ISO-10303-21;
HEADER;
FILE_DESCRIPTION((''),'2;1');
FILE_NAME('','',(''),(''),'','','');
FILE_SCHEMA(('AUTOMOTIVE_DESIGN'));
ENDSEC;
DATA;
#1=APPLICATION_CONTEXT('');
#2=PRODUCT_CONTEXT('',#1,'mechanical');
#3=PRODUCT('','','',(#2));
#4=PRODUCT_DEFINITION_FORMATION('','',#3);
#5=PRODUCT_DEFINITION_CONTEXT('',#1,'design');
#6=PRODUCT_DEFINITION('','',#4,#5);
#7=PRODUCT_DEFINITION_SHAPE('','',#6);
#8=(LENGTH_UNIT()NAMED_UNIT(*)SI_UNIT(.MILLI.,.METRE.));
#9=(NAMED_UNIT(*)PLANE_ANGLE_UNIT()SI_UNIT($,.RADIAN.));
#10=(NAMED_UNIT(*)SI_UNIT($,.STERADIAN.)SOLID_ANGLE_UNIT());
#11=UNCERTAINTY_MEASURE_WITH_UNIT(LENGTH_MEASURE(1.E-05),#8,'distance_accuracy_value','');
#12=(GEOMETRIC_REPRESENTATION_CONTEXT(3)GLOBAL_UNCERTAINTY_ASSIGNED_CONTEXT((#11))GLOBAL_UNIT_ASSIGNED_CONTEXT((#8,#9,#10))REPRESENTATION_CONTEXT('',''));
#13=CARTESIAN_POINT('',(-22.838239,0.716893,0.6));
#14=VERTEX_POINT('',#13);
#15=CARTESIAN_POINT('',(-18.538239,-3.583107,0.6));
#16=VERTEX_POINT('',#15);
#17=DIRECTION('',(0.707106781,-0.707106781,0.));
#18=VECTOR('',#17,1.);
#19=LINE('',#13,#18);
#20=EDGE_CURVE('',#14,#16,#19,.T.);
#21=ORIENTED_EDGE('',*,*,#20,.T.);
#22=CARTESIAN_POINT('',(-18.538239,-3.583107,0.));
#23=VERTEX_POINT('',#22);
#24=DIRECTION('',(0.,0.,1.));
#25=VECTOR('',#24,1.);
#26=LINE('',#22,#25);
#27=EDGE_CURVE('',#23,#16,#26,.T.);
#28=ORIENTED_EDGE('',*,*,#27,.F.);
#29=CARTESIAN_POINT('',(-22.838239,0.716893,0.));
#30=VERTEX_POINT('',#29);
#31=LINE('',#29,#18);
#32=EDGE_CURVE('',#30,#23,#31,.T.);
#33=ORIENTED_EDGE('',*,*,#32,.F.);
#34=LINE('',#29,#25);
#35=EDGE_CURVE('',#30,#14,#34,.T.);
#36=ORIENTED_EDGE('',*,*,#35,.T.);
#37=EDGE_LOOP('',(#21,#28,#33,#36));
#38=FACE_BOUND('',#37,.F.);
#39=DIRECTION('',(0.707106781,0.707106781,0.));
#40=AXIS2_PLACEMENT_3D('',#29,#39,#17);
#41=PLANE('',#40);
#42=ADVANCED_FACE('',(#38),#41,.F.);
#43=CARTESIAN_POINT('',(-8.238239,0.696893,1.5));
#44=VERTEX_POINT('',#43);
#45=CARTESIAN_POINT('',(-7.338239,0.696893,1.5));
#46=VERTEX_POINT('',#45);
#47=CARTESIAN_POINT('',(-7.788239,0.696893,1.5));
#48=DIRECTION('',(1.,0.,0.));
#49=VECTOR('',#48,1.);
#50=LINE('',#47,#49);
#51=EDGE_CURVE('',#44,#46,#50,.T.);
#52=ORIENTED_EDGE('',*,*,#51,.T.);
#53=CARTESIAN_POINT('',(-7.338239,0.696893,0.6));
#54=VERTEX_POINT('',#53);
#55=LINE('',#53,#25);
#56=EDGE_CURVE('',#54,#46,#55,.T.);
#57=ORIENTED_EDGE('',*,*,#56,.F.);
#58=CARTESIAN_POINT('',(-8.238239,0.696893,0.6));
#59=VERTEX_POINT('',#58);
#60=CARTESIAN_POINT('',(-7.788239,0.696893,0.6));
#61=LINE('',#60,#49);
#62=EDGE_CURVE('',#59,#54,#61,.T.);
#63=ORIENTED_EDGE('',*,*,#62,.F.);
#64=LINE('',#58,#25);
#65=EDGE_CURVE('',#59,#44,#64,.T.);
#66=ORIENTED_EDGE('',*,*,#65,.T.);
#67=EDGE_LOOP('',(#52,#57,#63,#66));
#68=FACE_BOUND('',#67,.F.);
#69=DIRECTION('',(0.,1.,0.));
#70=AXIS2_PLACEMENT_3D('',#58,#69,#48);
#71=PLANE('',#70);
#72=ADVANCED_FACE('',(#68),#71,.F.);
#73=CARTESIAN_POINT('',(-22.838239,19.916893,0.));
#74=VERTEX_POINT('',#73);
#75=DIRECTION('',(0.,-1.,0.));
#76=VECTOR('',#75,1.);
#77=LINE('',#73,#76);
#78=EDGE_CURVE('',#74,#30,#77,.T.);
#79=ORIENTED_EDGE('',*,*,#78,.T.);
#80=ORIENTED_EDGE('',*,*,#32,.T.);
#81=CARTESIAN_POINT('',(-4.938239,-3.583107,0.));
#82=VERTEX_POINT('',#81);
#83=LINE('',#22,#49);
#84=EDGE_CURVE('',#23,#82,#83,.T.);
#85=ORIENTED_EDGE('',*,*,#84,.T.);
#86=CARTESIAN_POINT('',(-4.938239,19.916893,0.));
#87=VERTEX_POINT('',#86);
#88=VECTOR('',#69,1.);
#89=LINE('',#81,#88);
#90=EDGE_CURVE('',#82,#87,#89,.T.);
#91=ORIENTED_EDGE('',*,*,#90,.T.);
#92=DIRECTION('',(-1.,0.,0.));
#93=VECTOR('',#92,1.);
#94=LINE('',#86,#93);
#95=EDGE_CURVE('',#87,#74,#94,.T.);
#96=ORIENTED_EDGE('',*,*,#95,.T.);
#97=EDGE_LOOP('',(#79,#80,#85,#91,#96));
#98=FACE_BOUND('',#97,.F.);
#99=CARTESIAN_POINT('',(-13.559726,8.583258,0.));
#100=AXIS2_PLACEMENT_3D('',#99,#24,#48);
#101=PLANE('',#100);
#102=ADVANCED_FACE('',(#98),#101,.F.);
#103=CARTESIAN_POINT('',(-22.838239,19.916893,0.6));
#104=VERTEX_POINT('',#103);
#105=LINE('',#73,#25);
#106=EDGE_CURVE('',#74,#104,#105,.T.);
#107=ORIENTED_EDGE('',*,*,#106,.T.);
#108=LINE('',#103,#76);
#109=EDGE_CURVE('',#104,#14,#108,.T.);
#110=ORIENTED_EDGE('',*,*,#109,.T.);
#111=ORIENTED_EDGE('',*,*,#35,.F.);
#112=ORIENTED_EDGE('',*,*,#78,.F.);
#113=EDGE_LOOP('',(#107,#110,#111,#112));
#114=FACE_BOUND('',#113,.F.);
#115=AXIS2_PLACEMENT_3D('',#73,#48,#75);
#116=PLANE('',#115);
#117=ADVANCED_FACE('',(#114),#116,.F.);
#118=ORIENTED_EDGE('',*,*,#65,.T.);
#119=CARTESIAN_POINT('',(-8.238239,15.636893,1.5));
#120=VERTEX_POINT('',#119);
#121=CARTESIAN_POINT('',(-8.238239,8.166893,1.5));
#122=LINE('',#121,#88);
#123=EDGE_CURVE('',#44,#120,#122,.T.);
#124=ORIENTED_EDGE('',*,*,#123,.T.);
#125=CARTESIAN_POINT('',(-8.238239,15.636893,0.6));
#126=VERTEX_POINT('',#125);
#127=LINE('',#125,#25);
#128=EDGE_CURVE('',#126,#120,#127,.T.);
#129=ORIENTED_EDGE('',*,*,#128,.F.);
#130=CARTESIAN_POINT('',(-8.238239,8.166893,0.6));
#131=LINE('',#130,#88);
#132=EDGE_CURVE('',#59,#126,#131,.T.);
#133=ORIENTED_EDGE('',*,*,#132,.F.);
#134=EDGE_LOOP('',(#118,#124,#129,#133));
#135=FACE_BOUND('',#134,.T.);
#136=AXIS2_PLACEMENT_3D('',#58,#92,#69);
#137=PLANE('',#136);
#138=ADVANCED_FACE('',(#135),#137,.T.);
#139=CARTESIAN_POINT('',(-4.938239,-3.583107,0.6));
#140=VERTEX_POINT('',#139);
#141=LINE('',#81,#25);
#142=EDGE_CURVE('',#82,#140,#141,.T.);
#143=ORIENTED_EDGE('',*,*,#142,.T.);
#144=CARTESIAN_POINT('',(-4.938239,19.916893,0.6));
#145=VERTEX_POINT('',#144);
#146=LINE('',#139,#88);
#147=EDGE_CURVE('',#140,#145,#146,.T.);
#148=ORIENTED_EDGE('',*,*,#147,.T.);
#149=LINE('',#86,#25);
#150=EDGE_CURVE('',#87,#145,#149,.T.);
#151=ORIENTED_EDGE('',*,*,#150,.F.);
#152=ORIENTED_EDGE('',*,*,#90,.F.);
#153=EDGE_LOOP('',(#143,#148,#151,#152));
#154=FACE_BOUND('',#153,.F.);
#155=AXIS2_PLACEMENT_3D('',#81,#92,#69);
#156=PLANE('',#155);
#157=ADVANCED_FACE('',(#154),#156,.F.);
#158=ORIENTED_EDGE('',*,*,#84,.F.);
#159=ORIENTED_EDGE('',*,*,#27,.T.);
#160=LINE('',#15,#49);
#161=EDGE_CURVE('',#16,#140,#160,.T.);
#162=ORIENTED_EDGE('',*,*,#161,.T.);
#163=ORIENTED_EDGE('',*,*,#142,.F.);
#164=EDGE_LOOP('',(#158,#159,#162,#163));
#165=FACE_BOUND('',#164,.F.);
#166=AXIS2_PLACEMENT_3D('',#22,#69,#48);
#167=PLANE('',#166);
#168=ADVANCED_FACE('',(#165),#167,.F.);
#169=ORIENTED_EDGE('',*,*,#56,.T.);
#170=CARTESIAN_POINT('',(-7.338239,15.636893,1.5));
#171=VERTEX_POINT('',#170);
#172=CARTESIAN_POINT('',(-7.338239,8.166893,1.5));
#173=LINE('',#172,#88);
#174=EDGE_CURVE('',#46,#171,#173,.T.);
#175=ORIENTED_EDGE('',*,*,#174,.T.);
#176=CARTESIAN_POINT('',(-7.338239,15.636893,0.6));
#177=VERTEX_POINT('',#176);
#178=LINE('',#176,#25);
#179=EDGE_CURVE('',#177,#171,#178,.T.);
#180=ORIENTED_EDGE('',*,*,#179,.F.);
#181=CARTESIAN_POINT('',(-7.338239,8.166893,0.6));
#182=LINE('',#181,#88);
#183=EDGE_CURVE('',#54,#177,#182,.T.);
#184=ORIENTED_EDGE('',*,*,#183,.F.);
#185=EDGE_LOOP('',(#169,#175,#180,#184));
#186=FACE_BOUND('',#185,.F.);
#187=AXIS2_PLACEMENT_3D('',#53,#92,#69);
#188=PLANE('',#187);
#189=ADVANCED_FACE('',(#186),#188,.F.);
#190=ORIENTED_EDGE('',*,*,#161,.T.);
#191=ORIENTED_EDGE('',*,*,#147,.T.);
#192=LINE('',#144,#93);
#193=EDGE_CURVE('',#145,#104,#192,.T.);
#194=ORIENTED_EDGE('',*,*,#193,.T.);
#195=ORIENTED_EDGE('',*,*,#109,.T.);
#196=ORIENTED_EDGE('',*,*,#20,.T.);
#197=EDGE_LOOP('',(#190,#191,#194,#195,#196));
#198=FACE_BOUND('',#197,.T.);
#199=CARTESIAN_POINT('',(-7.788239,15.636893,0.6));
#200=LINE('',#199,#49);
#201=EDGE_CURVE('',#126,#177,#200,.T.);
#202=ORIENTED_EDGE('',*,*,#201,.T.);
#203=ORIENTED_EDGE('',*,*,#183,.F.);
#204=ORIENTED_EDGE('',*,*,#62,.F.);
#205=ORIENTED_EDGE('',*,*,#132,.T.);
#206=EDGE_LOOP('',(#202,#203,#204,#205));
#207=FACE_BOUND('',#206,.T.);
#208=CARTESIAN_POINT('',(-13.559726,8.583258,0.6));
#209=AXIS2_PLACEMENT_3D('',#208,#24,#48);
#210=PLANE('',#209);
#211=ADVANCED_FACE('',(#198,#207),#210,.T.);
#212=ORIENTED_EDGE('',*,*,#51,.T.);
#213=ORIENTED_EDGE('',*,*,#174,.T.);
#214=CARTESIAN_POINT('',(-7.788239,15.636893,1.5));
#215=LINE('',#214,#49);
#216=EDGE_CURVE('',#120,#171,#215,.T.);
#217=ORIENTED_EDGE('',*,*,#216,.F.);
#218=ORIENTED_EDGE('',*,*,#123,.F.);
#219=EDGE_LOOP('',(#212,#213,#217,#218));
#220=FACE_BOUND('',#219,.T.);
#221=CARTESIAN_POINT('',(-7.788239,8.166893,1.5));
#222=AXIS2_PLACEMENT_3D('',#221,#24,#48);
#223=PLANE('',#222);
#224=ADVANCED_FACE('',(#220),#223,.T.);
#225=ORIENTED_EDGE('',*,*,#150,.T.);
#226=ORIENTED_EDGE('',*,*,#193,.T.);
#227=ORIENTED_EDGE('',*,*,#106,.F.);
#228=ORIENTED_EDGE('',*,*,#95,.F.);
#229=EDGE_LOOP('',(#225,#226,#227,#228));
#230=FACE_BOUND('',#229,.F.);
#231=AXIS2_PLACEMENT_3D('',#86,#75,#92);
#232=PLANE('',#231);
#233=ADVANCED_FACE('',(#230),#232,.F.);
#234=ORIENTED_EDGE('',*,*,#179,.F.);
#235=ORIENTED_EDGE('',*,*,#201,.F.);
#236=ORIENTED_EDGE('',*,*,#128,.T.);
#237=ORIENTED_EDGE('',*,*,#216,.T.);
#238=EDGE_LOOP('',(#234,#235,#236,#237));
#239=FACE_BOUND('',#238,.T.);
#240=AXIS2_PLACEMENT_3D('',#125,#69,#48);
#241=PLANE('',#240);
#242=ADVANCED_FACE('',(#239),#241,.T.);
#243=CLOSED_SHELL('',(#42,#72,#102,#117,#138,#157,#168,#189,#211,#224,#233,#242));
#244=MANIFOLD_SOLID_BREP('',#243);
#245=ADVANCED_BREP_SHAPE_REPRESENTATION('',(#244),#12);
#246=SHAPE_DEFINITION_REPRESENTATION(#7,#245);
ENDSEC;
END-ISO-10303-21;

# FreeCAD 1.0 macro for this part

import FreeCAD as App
import Part
import Sketcher
Q = App.Units.Quantity


def add_polygon(sketch, points):
    """Adds a closed chain of lines whose ends are joined by coincident constraints."""
    first, n = sketch.GeometryCount, len(points)
    for a, b in zip(points, points[1:] + points[:1]):
        sketch.addGeometry(Part.LineSegment(App.Vector(*a, 0), App.Vector(*b, 0)), False)
    for i in range(n):
        sketch.addConstraint(Sketcher.Constraint("Coincident", first + i, 2, first + (i + 1) % n, 1))

doc = App.newDocument("Part")
params = doc.addObject("Spreadsheet::Sheet", "Params")
for row, (alias, value) in enumerate([
    ("sketch1_width", "17.9 mm"),
    ("sketch1_width2", "13.6 mm"),
    ("sketch1_height", "19.2 mm"),
    ("pad1_length", "0.6 mm"),
    ("sketch2_width", "0.9 mm"),
    ("sketch2_height", "14.94 mm"),
    ("pad2_length", "0.9 mm"),
], start=1):
    params.set(f"A{row}", alias)
    params.set(f"B{row}", "=" + value)
    params.setAlias(f"B{row}", alias)

body = doc.addObject("PartDesign::Body", "Body")

# Sketch on XY plane
sketch1 = body.newObject("Sketcher::SketchObject", "Sketch")
sketch1.AttachmentSupport = (doc.getObject("XY_Plane"), [""])
sketch1.MapMode = "FlatFace"
add_polygon(sketch1, [(-4.938239, 19.916893), (-22.838239, 19.916893), (-22.838239, 0.716893), (-18.538239, -3.583107), (-4.938239, -3.583107)])  # lines 0-4
sketch1.addConstraint([
    Sketcher.Constraint("Horizontal", 0),
    Sketcher.Constraint("Vertical", 1),
    Sketcher.Constraint("Horizontal", 3),
    Sketcher.Constraint("Vertical", 4),
    Sketcher.Constraint("Angle", 2, Q("-45 deg")),
    Sketcher.Constraint("DistanceX", 0, 2, 0, 1, Q("17.9 mm")),
    Sketcher.Constraint("DistanceX", 3, 1, 3, 2, Q("13.6 mm")),
    Sketcher.Constraint("DistanceY", 1, 2, 1, 1, Q("19.2 mm")),
    Sketcher.Constraint("DistanceX", 0, 2, -1, 1, Q("22.838239 mm")),
    Sketcher.Constraint("DistanceY", -1, 1, 0, 2, Q("19.916893 mm")),
])
sketch1.setExpression("Constraints[10]", "Params.sketch1_width")
sketch1.setExpression("Constraints[11]", "Params.sketch1_width2")
sketch1.setExpression("Constraints[12]", "Params.sketch1_height")
pad1 = body.newObject("PartDesign::Pad", "Pad")
pad1.Profile = sketch1
pad1.setExpression("Length", "Params.pad1_length")

# Sketch on XY plane
sketch2 = body.newObject("Sketcher::SketchObject", "Sketch001")
sketch2.AttachmentSupport = (doc.getObject("XY_Plane"), [""])
sketch2.MapMode = "FlatFace"
sketch2.AttachmentOffset = App.Placement(App.Vector(0, 0, 0.6), App.Rotation())
add_polygon(sketch2, [(-8.238239, 15.636893), (-8.238239, 0.696893), (-7.338239, 0.696893), (-7.338239, 15.636893)])  # lines 0-3
sketch2.addConstraint([
    Sketcher.Constraint("Vertical", 0),
    Sketcher.Constraint("Horizontal", 1),
    Sketcher.Constraint("Vertical", 2),
    Sketcher.Constraint("Horizontal", 3),
    Sketcher.Constraint("DistanceX", 1, 1, 1, 2, Q("0.9 mm")),
    Sketcher.Constraint("DistanceY", 0, 2, 0, 1, Q("14.94 mm")),
    Sketcher.Constraint("DistanceX", 0, 2, -1, 1, Q("8.238239 mm")),
    Sketcher.Constraint("DistanceY", -1, 1, 0, 2, Q("0.696893 mm")),
])
sketch2.setExpression("Constraints[8]", "Params.sketch2_width")
sketch2.setExpression("Constraints[9]", "Params.sketch2_height")
pad2 = body.newObject("PartDesign::Pad", "Pad001")
pad2.Profile = sketch2
pad2.setExpression("Length", "Params.pad2_length")

doc.recompute()
